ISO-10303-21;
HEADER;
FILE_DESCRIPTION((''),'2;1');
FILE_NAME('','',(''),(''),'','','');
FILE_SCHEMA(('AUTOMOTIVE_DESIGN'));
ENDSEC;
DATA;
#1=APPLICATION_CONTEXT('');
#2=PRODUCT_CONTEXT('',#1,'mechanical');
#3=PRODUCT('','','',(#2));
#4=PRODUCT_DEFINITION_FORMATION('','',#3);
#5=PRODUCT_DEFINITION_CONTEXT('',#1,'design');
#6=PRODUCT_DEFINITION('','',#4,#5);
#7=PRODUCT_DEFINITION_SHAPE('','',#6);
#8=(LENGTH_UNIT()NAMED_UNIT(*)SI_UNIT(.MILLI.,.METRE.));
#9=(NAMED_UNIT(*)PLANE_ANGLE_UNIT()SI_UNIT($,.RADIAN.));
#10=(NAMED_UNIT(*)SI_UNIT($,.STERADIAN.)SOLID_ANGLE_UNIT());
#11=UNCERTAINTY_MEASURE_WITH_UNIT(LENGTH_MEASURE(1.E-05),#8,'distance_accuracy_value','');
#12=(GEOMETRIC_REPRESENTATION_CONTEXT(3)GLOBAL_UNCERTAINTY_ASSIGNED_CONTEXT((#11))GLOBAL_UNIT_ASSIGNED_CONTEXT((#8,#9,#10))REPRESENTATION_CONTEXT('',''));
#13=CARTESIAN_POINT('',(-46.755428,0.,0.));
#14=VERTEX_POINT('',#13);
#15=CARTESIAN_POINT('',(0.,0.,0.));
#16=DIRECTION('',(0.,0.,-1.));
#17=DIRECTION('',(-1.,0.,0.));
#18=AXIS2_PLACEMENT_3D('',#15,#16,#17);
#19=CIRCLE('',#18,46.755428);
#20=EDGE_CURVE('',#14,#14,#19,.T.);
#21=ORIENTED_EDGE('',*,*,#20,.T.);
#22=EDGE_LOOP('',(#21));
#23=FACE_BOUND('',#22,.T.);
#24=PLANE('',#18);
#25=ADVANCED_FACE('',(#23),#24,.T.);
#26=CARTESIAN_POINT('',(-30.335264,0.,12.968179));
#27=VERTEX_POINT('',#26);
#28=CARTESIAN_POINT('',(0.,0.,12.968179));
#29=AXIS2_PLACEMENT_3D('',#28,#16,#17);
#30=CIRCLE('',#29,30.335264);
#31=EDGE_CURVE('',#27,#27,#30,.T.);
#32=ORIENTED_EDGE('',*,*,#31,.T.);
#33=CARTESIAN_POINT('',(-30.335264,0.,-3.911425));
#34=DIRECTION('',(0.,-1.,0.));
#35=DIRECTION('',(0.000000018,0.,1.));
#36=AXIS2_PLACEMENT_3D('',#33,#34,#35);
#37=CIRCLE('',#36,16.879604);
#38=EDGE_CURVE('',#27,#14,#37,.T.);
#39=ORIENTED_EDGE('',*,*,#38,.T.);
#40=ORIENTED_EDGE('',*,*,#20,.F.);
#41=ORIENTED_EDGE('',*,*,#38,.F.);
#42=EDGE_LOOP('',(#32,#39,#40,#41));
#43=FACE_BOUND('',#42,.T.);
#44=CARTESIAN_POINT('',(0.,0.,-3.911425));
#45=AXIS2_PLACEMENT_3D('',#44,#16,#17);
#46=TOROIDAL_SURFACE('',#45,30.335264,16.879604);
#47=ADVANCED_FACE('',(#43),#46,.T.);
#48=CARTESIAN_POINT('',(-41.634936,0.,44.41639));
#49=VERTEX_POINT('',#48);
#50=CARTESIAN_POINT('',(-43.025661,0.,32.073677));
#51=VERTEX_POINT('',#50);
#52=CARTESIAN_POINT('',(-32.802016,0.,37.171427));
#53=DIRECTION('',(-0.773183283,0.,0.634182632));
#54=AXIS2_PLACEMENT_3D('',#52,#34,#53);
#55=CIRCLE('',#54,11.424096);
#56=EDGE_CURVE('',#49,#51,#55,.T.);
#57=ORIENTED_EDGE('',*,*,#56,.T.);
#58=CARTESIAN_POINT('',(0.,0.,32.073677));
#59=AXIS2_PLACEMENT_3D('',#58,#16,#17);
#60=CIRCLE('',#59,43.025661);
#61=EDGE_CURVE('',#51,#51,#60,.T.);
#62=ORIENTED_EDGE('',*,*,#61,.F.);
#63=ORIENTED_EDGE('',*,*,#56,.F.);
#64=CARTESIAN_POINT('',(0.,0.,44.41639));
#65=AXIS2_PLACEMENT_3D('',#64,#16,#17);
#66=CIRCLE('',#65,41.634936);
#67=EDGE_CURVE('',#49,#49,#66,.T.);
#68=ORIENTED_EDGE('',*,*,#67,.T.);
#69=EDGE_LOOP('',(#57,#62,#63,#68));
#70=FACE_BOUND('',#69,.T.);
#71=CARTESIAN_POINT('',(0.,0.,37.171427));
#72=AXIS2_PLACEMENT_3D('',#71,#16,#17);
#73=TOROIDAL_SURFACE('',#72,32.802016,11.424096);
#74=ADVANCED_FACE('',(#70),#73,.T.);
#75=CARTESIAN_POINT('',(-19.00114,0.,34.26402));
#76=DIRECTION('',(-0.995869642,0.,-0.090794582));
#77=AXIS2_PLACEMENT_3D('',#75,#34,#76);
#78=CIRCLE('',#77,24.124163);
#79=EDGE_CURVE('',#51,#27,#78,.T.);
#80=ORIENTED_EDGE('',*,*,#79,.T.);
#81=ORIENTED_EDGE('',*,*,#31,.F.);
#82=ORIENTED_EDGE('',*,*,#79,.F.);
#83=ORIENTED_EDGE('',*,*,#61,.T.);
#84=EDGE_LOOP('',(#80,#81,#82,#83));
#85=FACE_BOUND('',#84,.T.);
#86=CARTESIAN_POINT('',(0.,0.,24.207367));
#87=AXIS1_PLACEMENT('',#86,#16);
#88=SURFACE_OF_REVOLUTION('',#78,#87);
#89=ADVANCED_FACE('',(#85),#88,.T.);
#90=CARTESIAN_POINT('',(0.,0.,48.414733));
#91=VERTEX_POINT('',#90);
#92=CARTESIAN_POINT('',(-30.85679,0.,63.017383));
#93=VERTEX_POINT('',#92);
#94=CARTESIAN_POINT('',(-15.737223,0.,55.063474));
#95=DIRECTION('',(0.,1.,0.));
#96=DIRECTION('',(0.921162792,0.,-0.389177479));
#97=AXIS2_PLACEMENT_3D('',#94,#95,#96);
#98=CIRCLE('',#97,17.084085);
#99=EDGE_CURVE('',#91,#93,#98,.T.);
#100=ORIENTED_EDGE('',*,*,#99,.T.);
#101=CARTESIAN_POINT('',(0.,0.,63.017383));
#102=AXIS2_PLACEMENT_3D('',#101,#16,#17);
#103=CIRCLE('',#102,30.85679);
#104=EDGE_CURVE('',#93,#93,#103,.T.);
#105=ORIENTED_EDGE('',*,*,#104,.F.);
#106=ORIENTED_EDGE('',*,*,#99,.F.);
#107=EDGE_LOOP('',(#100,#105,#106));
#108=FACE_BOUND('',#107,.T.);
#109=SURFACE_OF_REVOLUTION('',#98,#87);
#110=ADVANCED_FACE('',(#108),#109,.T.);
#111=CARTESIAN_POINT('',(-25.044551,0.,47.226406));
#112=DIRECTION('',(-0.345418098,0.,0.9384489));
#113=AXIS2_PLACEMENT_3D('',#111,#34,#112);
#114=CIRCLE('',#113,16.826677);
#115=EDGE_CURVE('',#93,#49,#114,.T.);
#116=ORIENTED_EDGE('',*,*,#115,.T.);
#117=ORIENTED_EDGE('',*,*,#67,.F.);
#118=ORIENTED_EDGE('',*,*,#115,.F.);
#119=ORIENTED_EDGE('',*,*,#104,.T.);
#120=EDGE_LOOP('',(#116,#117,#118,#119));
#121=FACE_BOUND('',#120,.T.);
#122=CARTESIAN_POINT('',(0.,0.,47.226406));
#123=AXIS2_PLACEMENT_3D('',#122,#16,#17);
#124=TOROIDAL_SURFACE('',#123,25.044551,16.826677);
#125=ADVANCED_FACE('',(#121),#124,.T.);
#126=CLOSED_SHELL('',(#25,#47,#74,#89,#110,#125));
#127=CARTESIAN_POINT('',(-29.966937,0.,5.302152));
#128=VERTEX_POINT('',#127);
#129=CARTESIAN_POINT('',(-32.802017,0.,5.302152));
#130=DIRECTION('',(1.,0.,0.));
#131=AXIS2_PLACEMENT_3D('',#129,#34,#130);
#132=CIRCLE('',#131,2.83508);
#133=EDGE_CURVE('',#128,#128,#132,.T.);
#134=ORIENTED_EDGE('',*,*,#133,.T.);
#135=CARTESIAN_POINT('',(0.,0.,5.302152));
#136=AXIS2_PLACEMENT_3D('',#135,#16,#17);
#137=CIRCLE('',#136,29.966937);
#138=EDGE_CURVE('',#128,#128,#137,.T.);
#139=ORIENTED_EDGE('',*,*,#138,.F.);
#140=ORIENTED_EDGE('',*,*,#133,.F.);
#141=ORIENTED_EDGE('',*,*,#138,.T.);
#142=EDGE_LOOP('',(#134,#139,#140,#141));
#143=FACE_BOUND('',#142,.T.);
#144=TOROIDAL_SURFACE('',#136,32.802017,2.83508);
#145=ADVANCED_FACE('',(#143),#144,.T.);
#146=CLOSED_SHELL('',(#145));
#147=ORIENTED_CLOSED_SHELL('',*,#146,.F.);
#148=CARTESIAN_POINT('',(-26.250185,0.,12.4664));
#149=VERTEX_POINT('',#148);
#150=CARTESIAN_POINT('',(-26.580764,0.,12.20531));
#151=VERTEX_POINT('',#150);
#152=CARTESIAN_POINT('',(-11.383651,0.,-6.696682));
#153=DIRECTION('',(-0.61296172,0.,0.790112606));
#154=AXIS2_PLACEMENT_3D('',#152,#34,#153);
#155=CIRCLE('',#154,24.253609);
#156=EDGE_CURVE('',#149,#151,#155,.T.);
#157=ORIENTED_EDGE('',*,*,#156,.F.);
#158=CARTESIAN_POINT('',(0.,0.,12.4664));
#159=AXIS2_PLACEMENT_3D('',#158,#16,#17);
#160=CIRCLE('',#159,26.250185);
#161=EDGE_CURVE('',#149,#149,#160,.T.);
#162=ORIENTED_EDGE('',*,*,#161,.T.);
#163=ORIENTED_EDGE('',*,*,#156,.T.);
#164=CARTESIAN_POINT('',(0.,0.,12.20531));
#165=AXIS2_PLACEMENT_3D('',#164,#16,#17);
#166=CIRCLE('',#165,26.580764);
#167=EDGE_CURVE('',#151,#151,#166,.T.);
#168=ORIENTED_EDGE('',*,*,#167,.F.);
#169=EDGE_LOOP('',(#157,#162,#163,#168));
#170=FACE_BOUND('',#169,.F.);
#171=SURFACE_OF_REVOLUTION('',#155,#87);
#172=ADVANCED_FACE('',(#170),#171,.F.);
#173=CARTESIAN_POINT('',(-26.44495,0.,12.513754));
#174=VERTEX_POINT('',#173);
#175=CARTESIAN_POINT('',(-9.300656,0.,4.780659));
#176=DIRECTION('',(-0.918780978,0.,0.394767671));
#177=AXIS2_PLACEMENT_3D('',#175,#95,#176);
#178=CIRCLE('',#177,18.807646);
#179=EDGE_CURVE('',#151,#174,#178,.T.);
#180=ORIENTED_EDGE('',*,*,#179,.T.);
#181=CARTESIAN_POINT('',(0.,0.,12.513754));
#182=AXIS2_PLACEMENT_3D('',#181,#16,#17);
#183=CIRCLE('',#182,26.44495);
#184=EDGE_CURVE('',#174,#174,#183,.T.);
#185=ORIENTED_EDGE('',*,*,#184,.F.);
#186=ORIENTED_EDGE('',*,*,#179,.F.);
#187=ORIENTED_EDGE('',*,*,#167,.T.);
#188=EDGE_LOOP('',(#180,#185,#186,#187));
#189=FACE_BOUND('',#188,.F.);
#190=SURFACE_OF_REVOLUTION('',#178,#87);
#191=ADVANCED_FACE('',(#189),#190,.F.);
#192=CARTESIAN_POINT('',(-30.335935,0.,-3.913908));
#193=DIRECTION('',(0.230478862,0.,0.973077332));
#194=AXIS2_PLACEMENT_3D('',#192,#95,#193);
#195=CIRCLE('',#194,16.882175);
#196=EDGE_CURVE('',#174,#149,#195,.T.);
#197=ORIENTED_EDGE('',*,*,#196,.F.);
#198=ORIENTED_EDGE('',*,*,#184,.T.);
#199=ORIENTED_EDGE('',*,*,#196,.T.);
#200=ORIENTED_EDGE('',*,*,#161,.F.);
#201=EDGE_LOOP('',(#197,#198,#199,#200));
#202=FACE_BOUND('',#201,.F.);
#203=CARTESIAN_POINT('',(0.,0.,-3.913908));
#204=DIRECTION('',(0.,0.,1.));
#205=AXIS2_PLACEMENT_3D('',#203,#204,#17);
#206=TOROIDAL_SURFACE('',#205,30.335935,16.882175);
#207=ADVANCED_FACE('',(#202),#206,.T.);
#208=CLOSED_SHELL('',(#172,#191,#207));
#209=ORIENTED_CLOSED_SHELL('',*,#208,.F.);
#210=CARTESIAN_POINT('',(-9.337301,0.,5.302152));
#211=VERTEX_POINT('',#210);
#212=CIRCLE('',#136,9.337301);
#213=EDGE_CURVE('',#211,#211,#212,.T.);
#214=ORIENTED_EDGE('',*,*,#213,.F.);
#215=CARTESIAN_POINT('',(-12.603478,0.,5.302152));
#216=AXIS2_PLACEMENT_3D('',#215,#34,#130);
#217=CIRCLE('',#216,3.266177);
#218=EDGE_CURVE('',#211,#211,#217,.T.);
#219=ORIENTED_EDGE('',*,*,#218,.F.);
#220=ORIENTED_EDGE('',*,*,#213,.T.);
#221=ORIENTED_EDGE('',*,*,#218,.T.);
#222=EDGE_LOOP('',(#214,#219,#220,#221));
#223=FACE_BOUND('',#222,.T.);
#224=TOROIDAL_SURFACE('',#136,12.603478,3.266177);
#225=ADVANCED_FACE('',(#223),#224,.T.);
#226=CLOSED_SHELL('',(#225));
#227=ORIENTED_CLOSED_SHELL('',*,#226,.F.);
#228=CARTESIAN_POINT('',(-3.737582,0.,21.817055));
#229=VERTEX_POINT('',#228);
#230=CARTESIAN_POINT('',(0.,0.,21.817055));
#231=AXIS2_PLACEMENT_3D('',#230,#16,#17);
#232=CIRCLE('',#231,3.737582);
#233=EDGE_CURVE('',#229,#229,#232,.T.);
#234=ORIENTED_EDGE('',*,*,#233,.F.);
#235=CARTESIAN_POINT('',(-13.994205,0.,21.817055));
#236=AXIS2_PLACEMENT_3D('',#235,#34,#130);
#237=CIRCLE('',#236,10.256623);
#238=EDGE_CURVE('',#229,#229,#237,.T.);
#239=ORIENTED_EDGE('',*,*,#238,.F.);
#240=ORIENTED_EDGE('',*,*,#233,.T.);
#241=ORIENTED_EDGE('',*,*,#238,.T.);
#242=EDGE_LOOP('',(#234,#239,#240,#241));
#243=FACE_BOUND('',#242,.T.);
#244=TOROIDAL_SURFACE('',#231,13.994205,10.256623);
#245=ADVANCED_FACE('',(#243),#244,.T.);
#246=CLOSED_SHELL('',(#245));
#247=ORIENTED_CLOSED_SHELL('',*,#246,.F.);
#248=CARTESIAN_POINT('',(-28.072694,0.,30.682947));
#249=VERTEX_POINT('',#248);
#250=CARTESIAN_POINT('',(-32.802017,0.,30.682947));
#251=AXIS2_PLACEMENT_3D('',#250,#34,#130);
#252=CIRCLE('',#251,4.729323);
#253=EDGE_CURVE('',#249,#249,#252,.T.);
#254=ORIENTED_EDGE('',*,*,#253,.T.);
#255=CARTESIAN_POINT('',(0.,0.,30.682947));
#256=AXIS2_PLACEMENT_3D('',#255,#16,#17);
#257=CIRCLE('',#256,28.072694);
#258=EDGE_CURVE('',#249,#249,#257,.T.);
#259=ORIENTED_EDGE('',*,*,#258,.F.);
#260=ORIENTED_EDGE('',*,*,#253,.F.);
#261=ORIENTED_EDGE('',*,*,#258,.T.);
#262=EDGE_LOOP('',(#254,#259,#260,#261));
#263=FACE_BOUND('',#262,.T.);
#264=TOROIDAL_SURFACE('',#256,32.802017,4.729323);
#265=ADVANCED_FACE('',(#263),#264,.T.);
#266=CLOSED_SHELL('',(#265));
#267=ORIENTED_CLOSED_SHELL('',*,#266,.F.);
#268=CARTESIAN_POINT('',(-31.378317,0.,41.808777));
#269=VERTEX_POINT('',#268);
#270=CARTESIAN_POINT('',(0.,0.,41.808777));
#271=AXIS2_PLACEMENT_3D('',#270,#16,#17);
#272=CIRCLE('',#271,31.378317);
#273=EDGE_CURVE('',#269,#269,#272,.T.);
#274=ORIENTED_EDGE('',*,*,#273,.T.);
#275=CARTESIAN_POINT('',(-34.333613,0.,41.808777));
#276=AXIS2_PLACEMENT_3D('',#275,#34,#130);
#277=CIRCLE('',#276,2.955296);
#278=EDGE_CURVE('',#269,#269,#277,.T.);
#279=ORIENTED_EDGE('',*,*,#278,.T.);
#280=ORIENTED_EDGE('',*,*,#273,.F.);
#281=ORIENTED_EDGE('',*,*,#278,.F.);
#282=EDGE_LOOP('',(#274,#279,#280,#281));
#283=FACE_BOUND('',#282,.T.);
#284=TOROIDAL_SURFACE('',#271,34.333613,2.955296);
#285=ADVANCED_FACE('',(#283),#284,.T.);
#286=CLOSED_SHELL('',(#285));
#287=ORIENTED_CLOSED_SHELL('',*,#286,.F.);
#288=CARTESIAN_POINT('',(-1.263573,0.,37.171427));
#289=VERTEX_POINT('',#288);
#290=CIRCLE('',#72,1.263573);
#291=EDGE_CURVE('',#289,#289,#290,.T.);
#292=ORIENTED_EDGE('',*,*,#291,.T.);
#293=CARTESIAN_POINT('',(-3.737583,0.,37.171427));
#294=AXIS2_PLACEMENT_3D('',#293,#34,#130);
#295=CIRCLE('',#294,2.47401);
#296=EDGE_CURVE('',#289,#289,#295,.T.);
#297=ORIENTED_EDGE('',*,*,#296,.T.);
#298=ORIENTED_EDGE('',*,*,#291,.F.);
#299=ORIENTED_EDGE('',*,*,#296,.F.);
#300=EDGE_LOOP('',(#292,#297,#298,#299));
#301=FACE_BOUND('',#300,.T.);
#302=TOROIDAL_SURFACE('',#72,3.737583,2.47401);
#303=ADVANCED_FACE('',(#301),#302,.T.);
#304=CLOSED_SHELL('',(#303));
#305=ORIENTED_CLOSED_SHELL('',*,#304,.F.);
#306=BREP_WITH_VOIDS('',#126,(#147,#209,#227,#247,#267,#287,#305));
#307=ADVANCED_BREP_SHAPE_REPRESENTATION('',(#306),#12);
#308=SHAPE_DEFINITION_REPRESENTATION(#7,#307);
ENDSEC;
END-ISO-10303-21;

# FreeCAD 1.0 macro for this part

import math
import FreeCAD as App
import Part
import Sketcher

doc = App.newDocument("Part")
body = doc.addObject("PartDesign::Body", "Body")

sketch1 = body.newObject("Sketcher::SketchObject", "Sketch")
sketch1.AttachmentSupport = (doc.getObject("XZ_Plane"), [""])
sketch1.MapMode = "FlatFace"
sketch1.addGeometry(Part.LineSegment(App.Vector(0, 0, 0), App.Vector(0, 48.41, 0)), False)
sketch1.addGeometry(Part.ArcOfCircle(Part.Circle(App.Vector(-15.74, 55.06, 0), App.Vector(0, 0, 1), 17.08), math.radians(152), math.radians(337)), False)
sketch1.addGeometry(Part.ArcOfCircle(Part.Circle(App.Vector(-25.04, 47.23, 0), App.Vector(0, 0, 1), 16.83), math.radians(110), math.radians(190)), False)
sketch1.addGeometry(Part.ArcOfCircle(Part.Circle(App.Vector(-32.8, 37.17, 0), App.Vector(0, 0, 1), 11.42), math.radians(141), math.radians(207)), False)
sketch1.addGeometry(Part.ArcOfCircle(Part.Circle(App.Vector(-19, 34.26, 0), App.Vector(0, 0, 1), 24.12), math.radians(-175), math.radians(-118)), False)
sketch1.addGeometry(Part.ArcOfCircle(Part.Circle(App.Vector(-30.34, -3.91, 0), App.Vector(0, 0, 1), 16.88), math.radians(90), math.radians(167)), False)
sketch1.addGeometry(Part.LineSegment(App.Vector(-46.76, 0, 0), App.Vector(0, 0, 0)), False)
sketch1.addGeometry(Part.Circle(App.Vector(-32.8, 5.3, 0), App.Vector(0, 0, 1), 2.84), False)
sketch1.addGeometry(Part.ArcOfCircle(Part.Circle(App.Vector(-11.38, -6.7, 0), App.Vector(0, 0, 1), 24.25), math.radians(127.8), math.radians(128.8)), False)
sketch1.addGeometry(Part.ArcOfCircle(Part.Circle(App.Vector(-9.3, 4.78, 0), App.Vector(0, 0, 1), 18.81), math.radians(155.72), math.radians(156.75)), False)
sketch1.addGeometry(Part.ArcOfCircle(Part.Circle(App.Vector(-30.34, -3.91, 0), App.Vector(0, 0, 1), 16.88), math.radians(75.99), math.radians(76.67)), False)
sketch1.addGeometry(Part.Circle(App.Vector(-12.6, 5.3, 0), App.Vector(0, 0, 1), 3.27), False)
sketch1.addGeometry(Part.Circle(App.Vector(-13.99, 21.82, 0), App.Vector(0, 0, 1), 10.26), False)
sketch1.addGeometry(Part.Circle(App.Vector(-32.8, 30.68, 0), App.Vector(0, 0, 1), 4.73), False)
sketch1.addGeometry(Part.Circle(App.Vector(-34.33, 41.81, 0), App.Vector(0, 0, 1), 2.96), False)
sketch1.addGeometry(Part.Circle(App.Vector(-3.74, 37.17, 0), App.Vector(0, 0, 1), 2.47), False)
sketch1.addConstraint(Sketcher.Constraint("Coincident", 0, 2, 1, 2))
sketch1.addConstraint(Sketcher.Constraint("Coincident", 1, 1, 2, 1))
sketch1.addConstraint(Sketcher.Constraint("Coincident", 2, 2, 3, 1))
sketch1.addConstraint(Sketcher.Constraint("Coincident", 3, 2, 4, 1))
sketch1.addConstraint(Sketcher.Constraint("Coincident", 4, 2, 5, 1))
sketch1.addConstraint(Sketcher.Constraint("Coincident", 5, 2, 6, 1))
sketch1.addConstraint(Sketcher.Constraint("Coincident", 6, 2, 0, 1))
sketch1.addConstraint(Sketcher.Constraint("Coincident", 8, 2, 9, 2))
sketch1.addConstraint(Sketcher.Constraint("Coincident", 9, 1, 10, 2))
sketch1.addConstraint(Sketcher.Constraint("Coincident", 10, 1, 8, 1))
sketch1.addConstraint(Sketcher.Constraint("Vertical", 0))
sketch1.addConstraint(Sketcher.Constraint("Horizontal", 6))
sketch1.addConstraint(Sketcher.Constraint("Coincident", 6, 2, -1, 1))
sketch1.addConstraint(Sketcher.Constraint("Horizontal", 7, 3, 11, 3))
sketch1.addConstraint(Sketcher.Constraint("Horizontal", 3, 3, 15, 3))
sketch1.addConstraint(Sketcher.Constraint("Vertical", 3, 3, 7, 3))
sketch1.addConstraint(Sketcher.Constraint("Vertical", 7, 3, 13, 3))
sketch1.addConstraint(Sketcher.Constraint("Vertical", 5, 3, 4, 2))
sketch1.addConstraint(Sketcher.Constraint("Diameter", 7, 5.67016))
sketch1.addConstraint(Sketcher.Constraint("Diameter", 15, 4.94802))
sketch1.addConstraint(Sketcher.Constraint("Radius", 8, 24.253609))
sketch1.addConstraint(Sketcher.Constraint("Diameter", 11, 6.532354))
sketch1.addConstraint(Sketcher.Constraint("Diameter", 12, 20.513246))
sketch1.addConstraint(Sketcher.Constraint("Diameter", 13, 9.458646))
sketch1.addConstraint(Sketcher.Constraint("Diameter", 14, 5.910592))
sketch1.addConstraint(Sketcher.Constraint("Radius", 1, 17.084085))
sketch1.addConstraint(Sketcher.Constraint("Radius", 2, 16.826677))
sketch1.addConstraint(Sketcher.Constraint("Radius", 3, 11.424096))
sketch1.addConstraint(Sketcher.Constraint("Radius", 4, 24.124163))
sketch1.addConstraint(Sketcher.Constraint("Radius", 5, 16.879604))
sketch1.addConstraint(Sketcher.Constraint("Radius", 9, 18.807646))
sketch1.addConstraint(Sketcher.Constraint("Radius", 10, 16.882175))
sketch1.addConstraint(Sketcher.Constraint("DistanceX", 6, 1, 6, 2, 46.755428))
sketch1.addConstraint(Sketcher.Constraint("DistanceY", -1, 1, 10, 1, 12.4664))
sketch1.addConstraint(Sketcher.Constraint("DistanceY", 5, 3, 1, 3, 58.974899))
sketch1.addConstraint(Sketcher.Constraint("DistanceX", 2, 3, 8, 3, 13.6609))
sketch1.addConstraint(Sketcher.Constraint("DistanceY", 3, 2, 14, 3, 9.7351))
sketch1.addConstraint(Sketcher.Constraint("DistanceX", 4, 2, 8, 2, 3.7545))
sketch1.addConstraint(Sketcher.Constraint("DistanceY", 7, 3, 9, 1, 7.211602))
sketch1.addConstraint(Sketcher.Constraint("DistanceY", 9, 1, 12, 3, 9.303301))
sketch1.addConstraint(Sketcher.Constraint("DistanceY", 0, 1, 0, 2, 48.414733))
sketch1.addConstraint(Sketcher.Constraint("DistanceX", 2, 3, -1, 1, 25.044551))
sketch1.addConstraint(Sketcher.Constraint("DistanceX", 4, 3, -1, 1, 19.00114))
sketch1.addConstraint(Sketcher.Constraint("DistanceY", -1, 1, 4, 3, 34.26402))
sketch1.addConstraint(Sketcher.Constraint("DistanceY", -1, 1, 9, 3, 4.780659))
sketch1.addConstraint(Sketcher.Constraint("DistanceY", 10, 3, -1, 1, 3.913908))
sketch1.addConstraint(Sketcher.Constraint("DistanceX", 11, 3, -1, 1, 12.603478))
sketch1.addConstraint(Sketcher.Constraint("DistanceX", 1, 1, -1, 1, 30.85679))
sketch1.addConstraint(Sketcher.Constraint("DistanceY", -1, 1, 2, 2, 44.41639))
sketch1.addConstraint(Sketcher.Constraint("DistanceX", 3, 2, -1, 1, 43.025661))
sketch1.addConstraint(Sketcher.Constraint("DistanceY", -1, 1, 8, 2, 12.20531))
sketch1.addConstraint(Sketcher.Constraint("DistanceX", 12, 3, 9, 3, 4.693549))
sketch1.addConstraint(Sketcher.Constraint("DistanceY", 13, 3, 3, 3, 6.48848))
sketch1.addConstraint(Sketcher.Constraint("DistanceX", 14, 3, 2, 3, 9.289062))
sketch1.addConstraint(Sketcher.Constraint("DistanceX", 1, 3, 15, 3, 11.99964))
revolution = body.newObject("PartDesign::Revolution", "Revolution")
revolution.Profile = sketch1
revolution.ReferenceAxis = (sketch1, ["V_Axis"])
revolution.Angle = 360

doc.recompute()
